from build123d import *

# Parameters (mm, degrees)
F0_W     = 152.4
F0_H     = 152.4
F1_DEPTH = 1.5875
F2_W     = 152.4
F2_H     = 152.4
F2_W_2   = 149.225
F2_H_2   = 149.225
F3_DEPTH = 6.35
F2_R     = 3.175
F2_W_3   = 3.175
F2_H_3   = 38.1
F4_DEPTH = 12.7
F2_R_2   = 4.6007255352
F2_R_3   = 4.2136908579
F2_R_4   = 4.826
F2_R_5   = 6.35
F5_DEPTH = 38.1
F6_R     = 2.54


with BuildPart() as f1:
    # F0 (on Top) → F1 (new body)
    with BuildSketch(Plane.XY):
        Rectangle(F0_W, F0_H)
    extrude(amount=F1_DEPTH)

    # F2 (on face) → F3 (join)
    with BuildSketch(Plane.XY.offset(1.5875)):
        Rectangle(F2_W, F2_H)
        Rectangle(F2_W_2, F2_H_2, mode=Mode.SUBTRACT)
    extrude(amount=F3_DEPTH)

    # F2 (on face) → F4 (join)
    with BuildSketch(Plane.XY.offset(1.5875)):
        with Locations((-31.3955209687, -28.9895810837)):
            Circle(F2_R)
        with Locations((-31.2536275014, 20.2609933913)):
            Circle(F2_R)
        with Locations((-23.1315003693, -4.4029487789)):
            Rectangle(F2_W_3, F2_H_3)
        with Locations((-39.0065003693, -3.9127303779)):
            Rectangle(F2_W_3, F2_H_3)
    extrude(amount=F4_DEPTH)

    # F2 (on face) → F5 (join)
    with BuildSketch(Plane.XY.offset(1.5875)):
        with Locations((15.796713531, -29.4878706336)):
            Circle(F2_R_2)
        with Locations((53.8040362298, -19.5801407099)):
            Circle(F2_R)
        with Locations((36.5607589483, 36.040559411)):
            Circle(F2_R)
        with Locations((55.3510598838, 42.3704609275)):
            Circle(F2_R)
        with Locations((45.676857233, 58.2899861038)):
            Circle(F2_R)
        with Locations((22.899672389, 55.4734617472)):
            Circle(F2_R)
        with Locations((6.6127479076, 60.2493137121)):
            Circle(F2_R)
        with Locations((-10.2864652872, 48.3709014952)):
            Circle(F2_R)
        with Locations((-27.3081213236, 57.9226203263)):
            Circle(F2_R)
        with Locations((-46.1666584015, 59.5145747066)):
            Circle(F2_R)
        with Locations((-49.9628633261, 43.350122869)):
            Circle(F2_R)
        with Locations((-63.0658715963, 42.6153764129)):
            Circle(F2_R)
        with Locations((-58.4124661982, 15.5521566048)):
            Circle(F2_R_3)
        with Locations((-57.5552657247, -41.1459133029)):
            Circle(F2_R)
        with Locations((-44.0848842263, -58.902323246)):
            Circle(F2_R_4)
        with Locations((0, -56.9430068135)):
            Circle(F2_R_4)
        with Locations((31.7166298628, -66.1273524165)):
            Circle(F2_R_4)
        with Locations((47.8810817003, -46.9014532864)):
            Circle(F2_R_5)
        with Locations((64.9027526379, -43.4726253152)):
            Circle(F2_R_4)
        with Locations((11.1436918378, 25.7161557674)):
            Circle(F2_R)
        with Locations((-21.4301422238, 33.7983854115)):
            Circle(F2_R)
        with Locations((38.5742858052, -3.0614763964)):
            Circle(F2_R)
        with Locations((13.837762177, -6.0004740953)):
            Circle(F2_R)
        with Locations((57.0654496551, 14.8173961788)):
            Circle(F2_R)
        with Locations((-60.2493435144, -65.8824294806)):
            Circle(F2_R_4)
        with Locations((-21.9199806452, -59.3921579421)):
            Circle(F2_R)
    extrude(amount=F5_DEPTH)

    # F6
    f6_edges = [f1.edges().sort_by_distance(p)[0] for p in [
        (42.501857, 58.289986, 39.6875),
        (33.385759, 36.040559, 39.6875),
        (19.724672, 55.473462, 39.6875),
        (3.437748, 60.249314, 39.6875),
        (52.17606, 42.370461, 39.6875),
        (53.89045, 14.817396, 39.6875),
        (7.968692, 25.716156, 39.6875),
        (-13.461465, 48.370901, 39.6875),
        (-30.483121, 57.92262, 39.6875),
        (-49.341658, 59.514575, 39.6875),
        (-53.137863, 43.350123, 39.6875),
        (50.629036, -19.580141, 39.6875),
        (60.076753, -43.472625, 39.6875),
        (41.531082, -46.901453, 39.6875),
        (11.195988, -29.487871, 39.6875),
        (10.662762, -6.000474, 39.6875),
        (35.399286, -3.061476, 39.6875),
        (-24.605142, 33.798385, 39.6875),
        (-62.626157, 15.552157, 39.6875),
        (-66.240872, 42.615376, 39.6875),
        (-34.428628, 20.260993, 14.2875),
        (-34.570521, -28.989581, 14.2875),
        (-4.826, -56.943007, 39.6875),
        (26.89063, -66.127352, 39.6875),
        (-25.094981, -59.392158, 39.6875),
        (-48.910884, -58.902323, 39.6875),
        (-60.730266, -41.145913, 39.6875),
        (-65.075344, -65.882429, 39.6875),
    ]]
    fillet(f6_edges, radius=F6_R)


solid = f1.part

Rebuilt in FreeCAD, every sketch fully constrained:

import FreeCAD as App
import Part
import Sketcher
from FreeCAD import Vector
Q = App.Units.Quantity


def edges_at(feature, points):
    """Names of the edges that pass closest to the given points."""
    edges = feature.Shape.Edges
    near = lambda p: min(range(len(edges)), key=lambda i: edges[i].distToShape(Part.Vertex(*p))[0])
    return sorted({f"Edge{near(p) + 1}" for p in points})

doc = App.newDocument("Part")
params = doc.addObject("Spreadsheet::Sheet", "Params")
for row, (alias, value) in enumerate([
    ("sketch1_width", "6 in"),
    ("pad1_length", "0.0625 in"),
    ("sketch2_width", "6 in"),
    ("sketch2_width2", "5.875 in"),
    ("pad2_length", "0.25 in"),
    ("sketch3_diameter", "0.25 in"),
    ("sketch3_height", "1.5 in"),
    ("sketch3_width", "0.125 in"),
    ("pad3_length", "0.5 in"),
    ("sketch4_diameter", "0.5 in"),
    ("sketch4_diameter2", "0.25 in"),
    ("sketch4_diameter3", "0.38 in"),
    ("pad4_length", "1.5 in"),
    ("fillet_radius", "0.1 in"),
], start=1):
    params.set(f"A{row}", alias)
    params.set(f"B{row}", "=" + value)
    params.setAlias(f"B{row}", alias)

body = doc.addObject("PartDesign::Body", "Body")

# Sketch on XY plane
sketch1 = body.newObject("Sketcher::SketchObject", "Sketch")
sketch1.AttachmentSupport = (doc.getObject("XY_Plane"), [""])
sketch1.MapMode = "FlatFace"
sketch1.addGeometry(Part.LineSegment(Vector(-76, 76, 0), Vector(-76, -76, 0)), False)
sketch1.addGeometry(Part.LineSegment(Vector(-76, -76, 0), Vector(76, -76, 0)), False)
sketch1.addGeometry(Part.LineSegment(Vector(76, -76, 0), Vector(76, 76, 0)), False)
sketch1.addGeometry(Part.LineSegment(Vector(76, 76, 0), Vector(-76, 76, 0)), False)
sketch1.addConstraint(Sketcher.Constraint("Coincident", 0, 2, 1, 1))
sketch1.addConstraint(Sketcher.Constraint("Coincident", 1, 2, 2, 1))
sketch1.addConstraint(Sketcher.Constraint("Coincident", 2, 2, 3, 1))
sketch1.addConstraint(Sketcher.Constraint("Coincident", 3, 2, 0, 1))
sketch1.addConstraint(Sketcher.Constraint("Vertical", 0))
sketch1.addConstraint(Sketcher.Constraint("Horizontal", 1))
sketch1.addConstraint(Sketcher.Constraint("Vertical", 2))
sketch1.addConstraint(Sketcher.Constraint("Horizontal", 3))
sketch1.addConstraint(Sketcher.Constraint("Symmetric", 0, 2, 2, 2, -1, 1))
sketch1.addConstraint(Sketcher.Constraint("Equal", 3, 0))
sketch1.addConstraint(Sketcher.Constraint("DistanceX", 1, 1, 1, 2, Q("6 in")))
sketch1.setExpression("Constraints[10]", "Params.sketch1_width")
pad1 = body.newObject("PartDesign::Pad", "Pad")
pad1.Profile = sketch1
pad1.setExpression("Length", "Params.pad1_length")

# Sketch on XY plane
sketch2 = body.newObject("Sketcher::SketchObject", "Sketch001")
sketch2.AttachmentSupport = (doc.getObject("XY_Plane"), [""])
sketch2.MapMode = "FlatFace"
sketch2.AttachmentOffset = App.Placement(Vector(0, 0, 0.0625 * 25.4), App.Rotation())
sketch2.addGeometry(Part.LineSegment(Vector(-76, 76, 0), Vector(-76, -76, 0)), False)
sketch2.addGeometry(Part.LineSegment(Vector(-76, -76, 0), Vector(76, -76, 0)), False)
sketch2.addGeometry(Part.LineSegment(Vector(76, -76, 0), Vector(76, 76, 0)), False)
sketch2.addGeometry(Part.LineSegment(Vector(76, 76, 0), Vector(-76, 76, 0)), False)
sketch2.addGeometry(Part.LineSegment(Vector(75, -75, 0), Vector(-75, -75, 0)), False)
sketch2.addGeometry(Part.LineSegment(Vector(-75, -75, 0), Vector(-75, 75, 0)), False)
sketch2.addGeometry(Part.LineSegment(Vector(-75, 75, 0), Vector(75, 75, 0)), False)
sketch2.addGeometry(Part.LineSegment(Vector(75, 75, 0), Vector(75, -75, 0)), False)
sketch2.addConstraint(Sketcher.Constraint("Coincident", 0, 2, 1, 1))
sketch2.addConstraint(Sketcher.Constraint("Coincident", 1, 2, 2, 1))
sketch2.addConstraint(Sketcher.Constraint("Coincident", 2, 2, 3, 1))
sketch2.addConstraint(Sketcher.Constraint("Coincident", 3, 2, 0, 1))
sketch2.addConstraint(Sketcher.Constraint("Coincident", 4, 2, 5, 1))
sketch2.addConstraint(Sketcher.Constraint("Coincident", 5, 2, 6, 1))
sketch2.addConstraint(Sketcher.Constraint("Coincident", 6, 2, 7, 1))
sketch2.addConstraint(Sketcher.Constraint("Coincident", 7, 2, 4, 1))
sketch2.addConstraint(Sketcher.Constraint("Vertical", 0))
sketch2.addConstraint(Sketcher.Constraint("Horizontal", 1))
sketch2.addConstraint(Sketcher.Constraint("Vertical", 2))
sketch2.addConstraint(Sketcher.Constraint("Horizontal", 3))
sketch2.addConstraint(Sketcher.Constraint("Horizontal", 4))
sketch2.addConstraint(Sketcher.Constraint("Vertical", 5))
sketch2.addConstraint(Sketcher.Constraint("Horizontal", 6))
sketch2.addConstraint(Sketcher.Constraint("Vertical", 7))
sketch2.addConstraint(Sketcher.Constraint("Symmetric", 0, 2, 2, 2, -1, 1))
sketch2.addConstraint(Sketcher.Constraint("Symmetric", 4, 2, 6, 2, -1, 1))
sketch2.addConstraint(Sketcher.Constraint("Equal", 3, 0))
sketch2.addConstraint(Sketcher.Constraint("Equal", 6, 5))
sketch2.addConstraint(Sketcher.Constraint("DistanceX", 1, 1, 1, 2, Q("6 in")))
sketch2.addConstraint(Sketcher.Constraint("DistanceX", 4, 2, 4, 1, Q("5.875 in")))
sketch2.setExpression("Constraints[20]", "Params.sketch2_width")
sketch2.setExpression("Constraints[21]", "Params.sketch2_width2")
pad2 = body.newObject("PartDesign::Pad", "Pad001")
pad2.Profile = sketch2
pad2.setExpression("Length", "Params.pad2_length")

# Sketch on XY plane
sketch3 = body.newObject("Sketcher::SketchObject", "Sketch002")
sketch3.AttachmentSupport = (doc.getObject("XY_Plane"), [""])
sketch3.MapMode = "FlatFace"
sketch3.AttachmentOffset = App.Placement(Vector(0, 0, 0.0625 * 25.4), App.Rotation())
sketch3.addGeometry(Part.Circle(Vector(-31.4, -29, 0), Vector(0, 0, 1), 3.2), False)
sketch3.addGeometry(Part.Circle(Vector(-31.3, 20.3, 0), Vector(0, 0, 1), 3.2), False)
sketch3.addGeometry(Part.LineSegment(Vector(-24.7, 14.6, 0), Vector(-24.7, -23.5, 0)), False)
sketch3.addGeometry(Part.LineSegment(Vector(-24.7, -23.5, 0), Vector(-21.5, -23.5, 0)), False)
sketch3.addGeometry(Part.LineSegment(Vector(-21.5, -23.5, 0), Vector(-21.5, 14.6, 0)), False)
sketch3.addGeometry(Part.LineSegment(Vector(-21.5, 14.6, 0), Vector(-24.7, 14.6, 0)), False)
sketch3.addGeometry(Part.LineSegment(Vector(-40.6, 15.1, 0), Vector(-40.6, -23, 0)), False)
sketch3.addGeometry(Part.LineSegment(Vector(-40.6, -23, 0), Vector(-37.4, -23, 0)), False)
sketch3.addGeometry(Part.LineSegment(Vector(-37.4, -23, 0), Vector(-37.4, 15.1, 0)), False)
sketch3.addGeometry(Part.LineSegment(Vector(-37.4, 15.1, 0), Vector(-40.6, 15.1, 0)), False)
sketch3.addConstraint(Sketcher.Constraint("Coincident", 2, 2, 3, 1))
sketch3.addConstraint(Sketcher.Constraint("Coincident", 3, 2, 4, 1))
sketch3.addConstraint(Sketcher.Constraint("Coincident", 4, 2, 5, 1))
sketch3.addConstraint(Sketcher.Constraint("Coincident", 5, 2, 2, 1))
sketch3.addConstraint(Sketcher.Constraint("Coincident", 6, 2, 7, 1))
sketch3.addConstraint(Sketcher.Constraint("Coincident", 7, 2, 8, 1))
sketch3.addConstraint(Sketcher.Constraint("Coincident", 8, 2, 9, 1))
sketch3.addConstraint(Sketcher.Constraint("Coincident", 9, 2, 6, 1))
sketch3.addConstraint(Sketcher.Constraint("Vertical", 2))
sketch3.addConstraint(Sketcher.Constraint("Horizontal", 3))
sketch3.addConstraint(Sketcher.Constraint("Vertical", 4))
sketch3.addConstraint(Sketcher.Constraint("Horizontal", 5))
sketch3.addConstraint(Sketcher.Constraint("Vertical", 6))
sketch3.addConstraint(Sketcher.Constraint("Horizontal", 7))
sketch3.addConstraint(Sketcher.Constraint("Vertical", 8))
sketch3.addConstraint(Sketcher.Constraint("Horizontal", 9))
sketch3.addConstraint(Sketcher.Constraint("Equal", 0, 1))
sketch3.addConstraint(Sketcher.Constraint("Equal", 5, 7))
sketch3.addConstraint(Sketcher.Constraint("Equal", 4, 6))
sketch3.addConstraint(Sketcher.Constraint("Diameter", 0, Q("0.25 in")))
sketch3.addConstraint(Sketcher.Constraint("DistanceY", 2, 2, 2, 1, Q("1.5 in")))
sketch3.addConstraint(Sketcher.Constraint("DistanceX", 7, 2, 2, 2, Q("0.5 in")))
sketch3.addConstraint(Sketcher.Constraint("DistanceX", 3, 1, 3, 2, Q("0.125 in")))
sketch3.addConstraint(Sketcher.Constraint("DistanceY", 2, 2, 6, 2, Q("0.0192999 in")))
sketch3.addConstraint(Sketcher.Constraint("DistanceX", 2, 2, -1, 1, Q("24.719 mm")))
sketch3.addConstraint(Sketcher.Constraint("DistanceX", 0, 3, -1, 1, Q("31.395521 mm")))
sketch3.addConstraint(Sketcher.Constraint("DistanceY", 0, 3, -1, 1, Q("28.989581 mm")))
sketch3.addConstraint(Sketcher.Constraint("DistanceY", 2, 2, -1, 1, Q("23.452949 mm")))
sketch3.addConstraint(Sketcher.Constraint("DistanceX", 1, 3, -1, 1, Q("31.253628 mm")))
sketch3.addConstraint(Sketcher.Constraint("DistanceY", -1, 1, 1, 3, Q("20.260993 mm")))
sketch3.setExpression("Constraints[19]", "Params.sketch3_diameter")
sketch3.setExpression("Constraints[20]", "Params.sketch3_height")
sketch3.setExpression("Constraints[22]", "Params.sketch3_width")
pad3 = body.newObject("PartDesign::Pad", "Pad002")
pad3.Profile = sketch3
pad3.setExpression("Length", "Params.pad3_length")

# Sketch on XY plane
sketch4 = body.newObject("Sketcher::SketchObject", "Sketch003")
sketch4.AttachmentSupport = (doc.getObject("XY_Plane"), [""])
sketch4.MapMode = "FlatFace"
sketch4.AttachmentOffset = App.Placement(Vector(0, 0, 0.0625 * 25.4), App.Rotation())
sketch4.addGeometry(Part.Circle(Vector(15.8, -29.5, 0), Vector(0, 0, 1), 4.6), False)
sketch4.addGeometry(Part.Circle(Vector(53.8, -19.6, 0), Vector(0, 0, 1), 3.2), False)
sketch4.addGeometry(Part.Circle(Vector(36.6, 36, 0), Vector(0, 0, 1), 3.2), False)
sketch4.addGeometry(Part.Circle(Vector(55.4, 42.4, 0), Vector(0, 0, 1), 3.2), False)
sketch4.addGeometry(Part.Circle(Vector(45.7, 58.3, 0), Vector(0, 0, 1), 3.2), False)
sketch4.addGeometry(Part.Circle(Vector(22.9, 55.5, 0), Vector(0, 0, 1), 3.2), False)
sketch4.addGeometry(Part.Circle(Vector(6.6, 60.2, 0), Vector(0, 0, 1), 3.2), False)
sketch4.addGeometry(Part.Circle(Vector(-10.3, 48.4, 0), Vector(0, 0, 1), 3.2), False)
sketch4.addGeometry(Part.Circle(Vector(-27.3, 57.9, 0), Vector(0, 0, 1), 3.2), False)
sketch4.addGeometry(Part.Circle(Vector(-46.2, 59.5, 0), Vector(0, 0, 1), 3.2), False)
sketch4.addGeometry(Part.Circle(Vector(-50, 43.4, 0), Vector(0, 0, 1), 3.2), False)
sketch4.addGeometry(Part.Circle(Vector(-63.1, 42.6, 0), Vector(0, 0, 1), 3.2), False)
sketch4.addGeometry(Part.Circle(Vector(-58.4, 15.6, 0), Vector(0, 0, 1), 4.2), False)
sketch4.addGeometry(Part.Circle(Vector(-57.6, -41.1, 0), Vector(0, 0, 1), 3.2), False)
sketch4.addGeometry(Part.Circle(Vector(-44.1, -58.9, 0), Vector(0, 0, 1), 4.8), False)
sketch4.addGeometry(Part.Circle(Vector(0, -56.9, 0), Vector(0, 0, 1), 4.8), False)
sketch4.addGeometry(Part.Circle(Vector(31.7, -66.1, 0), Vector(0, 0, 1), 4.8), False)
sketch4.addGeometry(Part.Circle(Vector(47.9, -46.9, 0), Vector(0, 0, 1), 6.3), False)
sketch4.addGeometry(Part.Circle(Vector(64.9, -43.5, 0), Vector(0, 0, 1), 4.8), False)
sketch4.addGeometry(Part.Circle(Vector(11.1, 25.7, 0), Vector(0, 0, 1), 3.2), False)
sketch4.addGeometry(Part.Circle(Vector(-21.4, 33.8, 0), Vector(0, 0, 1), 3.2), False)
sketch4.addGeometry(Part.Circle(Vector(38.6, -3.1, 0), Vector(0, 0, 1), 3.2), False)
sketch4.addGeometry(Part.Circle(Vector(13.8, -6, 0), Vector(0, 0, 1), 3.2), False)
sketch4.addGeometry(Part.Circle(Vector(57.1, 14.8, 0), Vector(0, 0, 1), 3.2), False)
sketch4.addGeometry(Part.Circle(Vector(-60.2, -65.9, 0), Vector(0, 0, 1), 4.8), False)
sketch4.addGeometry(Part.Circle(Vector(-21.9, -59.4, 0), Vector(0, 0, 1), 3.2), False)
sketch4.addConstraint(Sketcher.Constraint("Equal", 1, 2))
sketch4.addConstraint(Sketcher.Constraint("Equal", 2, 3))
sketch4.addConstraint(Sketcher.Constraint("Equal", 3, 4))
sketch4.addConstraint(Sketcher.Constraint("Equal", 4, 5))
sketch4.addConstraint(Sketcher.Constraint("Equal", 5, 6))
sketch4.addConstraint(Sketcher.Constraint("Equal", 6, 7))
sketch4.addConstraint(Sketcher.Constraint("Equal", 7, 8))
sketch4.addConstraint(Sketcher.Constraint("Equal", 8, 9))
sketch4.addConstraint(Sketcher.Constraint("Equal", 9, 10))
sketch4.addConstraint(Sketcher.Constraint("Equal", 10, 11))
sketch4.addConstraint(Sketcher.Constraint("Equal", 11, 13))
sketch4.addConstraint(Sketcher.Constraint("Equal", 14, 15))
sketch4.addConstraint(Sketcher.Constraint("Equal", 15, 16))
sketch4.addConstraint(Sketcher.Constraint("Equal", 16, 18))
sketch4.addConstraint(Sketcher.Constraint("Equal", 13, 19))
sketch4.addConstraint(Sketcher.Constraint("Equal", 19, 20))
sketch4.addConstraint(Sketcher.Constraint("Equal", 20, 21))
sketch4.addConstraint(Sketcher.Constraint("Equal", 21, 22))
sketch4.addConstraint(Sketcher.Constraint("Equal", 22, 23))
sketch4.addConstraint(Sketcher.Constraint("Equal", 18, 24))
sketch4.addConstraint(Sketcher.Constraint("Equal", 23, 25))
sketch4.addConstraint(Sketcher.Constraint("PointOnObject", 15, 3, -2))
sketch4.addConstraint(Sketcher.Constraint("Diameter", 17, Q("0.5 in")))
sketch4.addConstraint(Sketcher.Constraint("Diameter", 1, Q("0.25 in")))
sketch4.addConstraint(Sketcher.Constraint("Diameter", 14, Q("0.38 in")))
sketch4.addConstraint(Sketcher.Constraint("Diameter", 0, Q("9.201451 mm")))
sketch4.addConstraint(Sketcher.Constraint("Diameter", 12, Q("8.427382 mm")))
sketch4.addConstraint(Sketcher.Constraint("DistanceY", 1, 3, 3, 3, Q("2.4390001 in")))
sketch4.addConstraint(Sketcher.Constraint("DistanceX", -1, 1, 2, 3, Q("1.4394 in")))
sketch4.addConstraint(Sketcher.Constraint("DistanceY", -1, 1, 7, 3, Q("48.370901 mm")))
sketch4.addConstraint(Sketcher.Constraint("DistanceY", 1, 3, 2, 3, Q("55.6207 mm")))
sketch4.addConstraint(Sketcher.Constraint("DistanceX", 2, 3, 3, 3, Q("18.790301 mm")))
sketch4.addConstraint(Sketcher.Constraint("DistanceX", 2, 3, 4, 3, Q("9.116098 mm")))
sketch4.addConstraint(Sketcher.Constraint("DistanceY", 3, 3, 5, 3, Q("13.103001 mm")))
sketch4.addConstraint(Sketcher.Constraint("DistanceX", 10, 3, 7, 3, Q("39.676398 mm")))
sketch4.addConstraint(Sketcher.Constraint("DistanceY", 11, 3, 9, 3, Q("16.899198 mm")))
sketch4.addConstraint(Sketcher.Constraint("DistanceX", 12, 3, 7, 3, Q("48.126001 mm")))
sketch4.addConstraint(Sketcher.Constraint("DistanceX", 12, 3, 13, 3, Q("0.8572 mm")))
sketch4.addConstraint(Sketcher.Constraint("DistanceY", 14, 3, 11, 3, Q("101.5177 mm")))
sketch4.addConstraint(Sketcher.Constraint("DistanceY", 16, 3, 17, 3, Q("19.225899 mm")))
sketch4.addConstraint(Sketcher.Constraint("DistanceY", 0, 3, -1, 1, Q("29.487871 mm")))
sketch4.addConstraint(Sketcher.Constraint("DistanceY", 1, 3, -1, 1, Q("19.580141 mm")))
sketch4.addConstraint(Sketcher.Constraint("DistanceX", 8, 3, -1, 1, Q("27.308121 mm")))
sketch4.addConstraint(Sketcher.Constraint("DistanceY", -1, 1, 8, 3, Q("57.92262 mm")))
sketch4.addConstraint(Sketcher.Constraint("DistanceX", 9, 3, -1, 1, Q("46.166658 mm")))
sketch4.addConstraint(Sketcher.Constraint("DistanceX", 11, 3, -1, 1, Q("63.065872 mm")))
sketch4.addConstraint(Sketcher.Constraint("DistanceX", -1, 1, 16, 3, Q("31.71663 mm")))
sketch4.addConstraint(Sketcher.Constraint("DistanceX", -1, 1, 17, 3, Q("47.881082 mm")))
sketch4.addConstraint(Sketcher.Constraint("DistanceX", -1, 1, 19, 3, Q("11.143692 mm")))
sketch4.addConstraint(Sketcher.Constraint("DistanceX", -1, 1, 23, 3, Q("57.06545 mm")))
sketch4.addConstraint(Sketcher.Constraint("DistanceY", 24, 3, -1, 1, Q("65.882429 mm")))
sketch4.addConstraint(Sketcher.Constraint("DistanceX", 25, 3, -1, 1, Q("21.919981 mm")))
sketch4.addConstraint(Sketcher.Constraint("DistanceX", 4, 3, 1, 3, Q("8.127179 mm")))
sketch4.addConstraint(Sketcher.Constraint("DistanceX", 0, 3, 5, 3, Q("7.102959 mm")))
sketch4.addConstraint(Sketcher.Constraint("DistanceY", 5, 3, 6, 3, Q("4.775852 mm")))
sketch4.addConstraint(Sketcher.Constraint("DistanceX", 6, 3, 2, 3, Q("29.948011 mm")))
sketch4.addConstraint(Sketcher.Constraint("DistanceY", 9, 3, 6, 3, Q("0.734739 mm")))
sketch4.addConstraint(Sketcher.Constraint("DistanceX", 9, 3, 5, 3, Q("69.066331 mm")))
sketch4.addConstraint(Sketcher.Constraint("DistanceY", 10, 3, 9, 3, Q("16.164452 mm")))
sketch4.addConstraint(Sketcher.Constraint("DistanceX", 10, 3, 6, 3, Q("56.575611 mm")))
sketch4.addConstraint(Sketcher.Constraint("DistanceY", 12, 3, 11, 3, Q("27.06322 mm")))
sketch4.addConstraint(Sketcher.Constraint("DistanceY", 13, 3, 12, 3, Q("56.69807 mm")))
sketch4.addConstraint(Sketcher.Constraint("DistanceX", 13, 3, 14, 3, Q("13.470381 mm")))
sketch4.addConstraint(Sketcher.Constraint("DistanceY", 16, 3, 0, 3, Q("36.639482 mm")))
sketch4.addConstraint(Sketcher.Constraint("DistanceX", 17, 3, 18, 3, Q("17.021671 mm")))
sketch4.addConstraint(Sketcher.Constraint("DistanceY", 15, 3, 18, 3, Q("13.470381 mm")))
sketch4.addConstraint(Sketcher.Constraint("DistanceX", 8, 3, 20, 3, Q("5.877979 mm")))
sketch4.addConstraint(Sketcher.Constraint("DistanceY", 19, 3, 20, 3, Q("8.08223 mm")))
sketch4.addConstraint(Sketcher.Constraint("DistanceY", 20, 3, 9, 3, Q("25.716189 mm")))
sketch4.addConstraint(Sketcher.Constraint("DistanceX", 21, 3, 1, 3, Q("15.22975 mm")))
sketch4.addConstraint(Sketcher.Constraint("DistanceX", 22, 3, 0, 3, Q("1.958951 mm")))
sketch4.addConstraint(Sketcher.Constraint("DistanceY", 22, 3, 19, 3, Q("31.71663 mm")))
sketch4.addConstraint(Sketcher.Constraint("DistanceY", 23, 3, 4, 3, Q("43.47259 mm")))
sketch4.addConstraint(Sketcher.Constraint("DistanceX", 24, 3, 14, 3, Q("16.164459 mm")))
sketch4.addConstraint(Sketcher.Constraint("DistanceY", 25, 3, 15, 3, Q("2.449151 mm")))
sketch4.addConstraint(Sketcher.Constraint("DistanceY", 24, 3, 25, 3, Q("6.490272 mm")))
sketch4.addConstraint(Sketcher.Constraint("DistanceY", -1, 1, 4, 3, Q("58.289986 mm")))
sketch4.addConstraint(Sketcher.Constraint("DistanceY", 21, 3, -1, 1, Q("3.061476 mm")))
sketch4.setExpression("Constraints[22]", "Params.sketch4_diameter")
sketch4.setExpression("Constraints[23]", "Params.sketch4_diameter2")
sketch4.setExpression("Constraints[24]", "Params.sketch4_diameter3")
pad4 = body.newObject("PartDesign::Pad", "Pad003")
pad4.Profile = sketch4
pad4.setExpression("Length", "Params.pad4_length")
doc.recompute()

fillet = body.newObject("PartDesign::Fillet", "Fillet")
fillet.Base = (pad4, edges_at(pad4, [
    (42.502, 58.29, 39.688),
    (33.386, 36.041, 39.688),
    (19.725, 55.473, 39.688),
    (3.438, 60.249, 39.688),
    (52.176, 42.37, 39.688),
    (53.89, 14.817, 39.688),
    (7.969, 25.716, 39.688),
    (-13.461, 48.371, 39.688),
    (-30.483, 57.923, 39.688),
    (-49.342, 59.515, 39.688),
    (-53.138, 43.35, 39.688),
    (50.629, -19.58, 39.688),
    (60.077, -43.473, 39.688),
    (41.531, -46.901, 39.688),
    (11.196, -29.488, 39.688),
    (10.663, -6, 39.688),
    (35.399, -3.061, 39.688),
    (-24.605, 33.798, 39.688),
    (-62.626, 15.552, 39.688),
    (-66.241, 42.615, 39.688),
    (-34.429, 20.261, 14.287),
    (-34.571, -28.99, 14.287),
    (-4.826, -56.943, 39.688),
    (26.891, -66.127, 39.688),
    (-25.095, -59.392, 39.688),
    (-48.911, -58.902, 39.688),
    (-60.73, -41.146, 39.688),
    (-65.075, -65.882, 39.688),
]))
fillet.setExpression("Radius", "Params.fillet_radius")

doc.recompute()
